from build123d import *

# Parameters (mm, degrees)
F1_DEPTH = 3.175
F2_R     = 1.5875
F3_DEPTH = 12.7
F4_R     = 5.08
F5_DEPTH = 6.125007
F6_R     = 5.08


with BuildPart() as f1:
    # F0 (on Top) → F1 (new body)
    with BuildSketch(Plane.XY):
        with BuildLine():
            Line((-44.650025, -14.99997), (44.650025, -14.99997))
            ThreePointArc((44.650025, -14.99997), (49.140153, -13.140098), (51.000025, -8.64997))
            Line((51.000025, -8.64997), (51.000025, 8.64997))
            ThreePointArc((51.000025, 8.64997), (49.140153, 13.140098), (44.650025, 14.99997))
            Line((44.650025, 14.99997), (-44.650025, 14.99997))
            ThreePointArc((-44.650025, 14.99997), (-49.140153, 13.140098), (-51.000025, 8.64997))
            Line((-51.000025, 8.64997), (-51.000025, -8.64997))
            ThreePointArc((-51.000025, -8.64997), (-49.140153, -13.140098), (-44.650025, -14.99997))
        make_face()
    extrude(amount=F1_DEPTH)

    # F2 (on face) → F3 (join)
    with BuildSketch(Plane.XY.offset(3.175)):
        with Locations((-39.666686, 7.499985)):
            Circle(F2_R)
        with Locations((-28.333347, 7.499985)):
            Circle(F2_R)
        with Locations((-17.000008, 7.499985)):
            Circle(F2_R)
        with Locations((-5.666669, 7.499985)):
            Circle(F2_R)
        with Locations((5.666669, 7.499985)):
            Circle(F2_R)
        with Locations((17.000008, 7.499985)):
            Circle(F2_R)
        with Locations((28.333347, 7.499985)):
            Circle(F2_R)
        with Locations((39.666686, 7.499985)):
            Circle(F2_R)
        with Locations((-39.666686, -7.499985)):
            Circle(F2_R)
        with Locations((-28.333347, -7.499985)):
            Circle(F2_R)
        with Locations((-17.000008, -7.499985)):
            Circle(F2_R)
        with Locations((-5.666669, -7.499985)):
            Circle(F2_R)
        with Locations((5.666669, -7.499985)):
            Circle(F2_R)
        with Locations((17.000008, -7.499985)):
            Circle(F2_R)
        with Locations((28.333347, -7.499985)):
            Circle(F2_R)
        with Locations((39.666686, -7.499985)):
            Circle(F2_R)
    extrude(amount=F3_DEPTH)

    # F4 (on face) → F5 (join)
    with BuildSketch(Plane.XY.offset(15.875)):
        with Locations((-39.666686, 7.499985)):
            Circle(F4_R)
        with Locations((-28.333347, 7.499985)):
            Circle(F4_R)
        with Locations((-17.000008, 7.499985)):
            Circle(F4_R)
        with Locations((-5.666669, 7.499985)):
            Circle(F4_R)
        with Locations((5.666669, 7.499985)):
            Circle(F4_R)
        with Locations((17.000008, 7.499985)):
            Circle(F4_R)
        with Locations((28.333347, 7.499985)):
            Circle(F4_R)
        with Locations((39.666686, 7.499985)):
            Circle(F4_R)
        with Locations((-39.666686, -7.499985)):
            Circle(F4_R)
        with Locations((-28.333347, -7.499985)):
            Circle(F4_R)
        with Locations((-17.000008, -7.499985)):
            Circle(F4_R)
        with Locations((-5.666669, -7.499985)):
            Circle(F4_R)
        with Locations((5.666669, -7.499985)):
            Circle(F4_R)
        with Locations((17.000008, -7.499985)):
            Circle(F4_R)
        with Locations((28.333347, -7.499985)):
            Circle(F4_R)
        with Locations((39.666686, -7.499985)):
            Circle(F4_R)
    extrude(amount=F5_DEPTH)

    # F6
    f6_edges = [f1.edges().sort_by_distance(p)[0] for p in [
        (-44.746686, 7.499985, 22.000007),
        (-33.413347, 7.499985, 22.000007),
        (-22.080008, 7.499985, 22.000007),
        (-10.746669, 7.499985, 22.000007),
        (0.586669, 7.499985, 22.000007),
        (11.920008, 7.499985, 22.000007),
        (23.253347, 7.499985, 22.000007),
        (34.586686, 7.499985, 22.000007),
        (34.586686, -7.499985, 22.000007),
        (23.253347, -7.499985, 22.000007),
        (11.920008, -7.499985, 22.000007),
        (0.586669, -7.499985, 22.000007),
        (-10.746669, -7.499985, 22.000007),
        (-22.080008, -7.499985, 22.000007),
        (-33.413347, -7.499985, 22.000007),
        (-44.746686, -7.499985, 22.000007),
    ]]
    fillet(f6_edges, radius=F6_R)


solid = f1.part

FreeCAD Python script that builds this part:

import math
import FreeCAD as App
import Part
import Sketcher
Q = App.Units.Quantity


def edges_at(feature, points):
    """Names of the edges that pass closest to the given points."""
    edges = feature.Shape.Edges
    near = lambda p: min(range(len(edges)), key=lambda i: edges[i].distToShape(Part.Vertex(*p))[0])
    return sorted({f"Edge{near(p) + 1}" for p in points})

doc = App.newDocument("Part")
body = doc.addObject("PartDesign::Body", "Body")

sketch1 = body.newObject("Sketcher::SketchObject", "Sketch")
sketch1.AttachmentSupport = (doc.getObject("XY_Plane"), [""])
sketch1.MapMode = "FlatFace"
sketch1.addGeometry([
    Part.LineSegment(App.Vector(-45, -15, 0), App.Vector(45, -15, 0)),
    Part.ArcOfCircle(Part.Circle(App.Vector(45, -9, 0), App.Vector(0, 0, 1), 6), math.radians(-90), math.radians(0)),
    Part.LineSegment(App.Vector(51, -9, 0), App.Vector(51, 9, 0)),
    Part.ArcOfCircle(Part.Circle(App.Vector(45, 9, 0), App.Vector(0, 0, 1), 6), math.radians(0), math.radians(90)),
    Part.LineSegment(App.Vector(45, 15, 0), App.Vector(-45, 15, 0)),
    Part.ArcOfCircle(Part.Circle(App.Vector(-45, 9, 0), App.Vector(0, 0, 1), 6), math.radians(90), math.radians(180)),
    Part.LineSegment(App.Vector(-51, 9, 0), App.Vector(-51, -9, 0)),
    Part.ArcOfCircle(Part.Circle(App.Vector(-45, -9, 0), App.Vector(0, 0, 1), 6), math.radians(-180), math.radians(-90)),
], False)
sketch1.addConstraint([
    Sketcher.Constraint("Tangent", 0, 2, 1, 1),
    Sketcher.Constraint("Tangent", 1, 2, 2, 1),
    Sketcher.Constraint("Tangent", 2, 2, 3, 1),
    Sketcher.Constraint("Tangent", 3, 2, 4, 1),
    Sketcher.Constraint("Tangent", 4, 2, 5, 1),
    Sketcher.Constraint("Tangent", 5, 2, 6, 1),
    Sketcher.Constraint("Tangent", 6, 2, 7, 1),
    Sketcher.Constraint("Tangent", 7, 2, 0, 1),
    Sketcher.Constraint("Horizontal", 0),
    Sketcher.Constraint("Vertical", 2),
    Sketcher.Constraint("Horizontal", 4),
    Sketcher.Constraint("Vertical", 6),
    Sketcher.Constraint("Equal", 1, 3),
    Sketcher.Constraint("Equal", 3, 5),
    Sketcher.Constraint("Equal", 5, 7),
    Sketcher.Constraint("Symmetric", 1, 3, 5, 3, -1, 1),
    Sketcher.Constraint("Radius", 1, Q("0.25 in")),
    Sketcher.Constraint("DistanceY", 2, 1, 2, 2, Q("0.6811 in")),
    Sketcher.Constraint("DistanceX", 0, 1, 0, 2, 89.30005),
])
pad1 = body.newObject("PartDesign::Pad", "Pad")
pad1.Profile = sketch1
pad1.Length = Q("0.125 in")

sketch2 = body.newObject("Sketcher::SketchObject", "Sketch001")
sketch2.AttachmentSupport = (doc.getObject("XY_Plane"), [""])
sketch2.MapMode = "FlatFace"
sketch2.AttachmentOffset = App.Placement(App.Vector(0, 0, 0.125 * 25.4), App.Rotation())
sketch2.addGeometry([
    Part.Circle(App.Vector(-39.7, 7.5, 0), App.Vector(0, 0, 1), 1.6),
    Part.Circle(App.Vector(-28.3, 7.5, 0), App.Vector(0, 0, 1), 1.6),
    Part.Circle(App.Vector(-17, 7.5, 0), App.Vector(0, 0, 1), 1.6),
    Part.Circle(App.Vector(-5.7, 7.5, 0), App.Vector(0, 0, 1), 1.6),
    Part.Circle(App.Vector(5.7, 7.5, 0), App.Vector(0, 0, 1), 1.6),
    Part.Circle(App.Vector(17, 7.5, 0), App.Vector(0, 0, 1), 1.6),
    Part.Circle(App.Vector(28.3, 7.5, 0), App.Vector(0, 0, 1), 1.6),
    Part.Circle(App.Vector(39.7, 7.5, 0), App.Vector(0, 0, 1), 1.6),
    Part.Circle(App.Vector(-39.7, -7.5, 0), App.Vector(0, 0, 1), 1.6),
    Part.Circle(App.Vector(-28.3, -7.5, 0), App.Vector(0, 0, 1), 1.6),
    Part.Circle(App.Vector(-17, -7.5, 0), App.Vector(0, 0, 1), 1.6),
    Part.Circle(App.Vector(-5.7, -7.5, 0), App.Vector(0, 0, 1), 1.6),
    Part.Circle(App.Vector(5.7, -7.5, 0), App.Vector(0, 0, 1), 1.6),
    Part.Circle(App.Vector(17, -7.5, 0), App.Vector(0, 0, 1), 1.6),
    Part.Circle(App.Vector(28.3, -7.5, 0), App.Vector(0, 0, 1), 1.6),
    Part.Circle(App.Vector(39.7, -7.5, 0), App.Vector(0, 0, 1), 1.6),
], False)
sketch2.addConstraint([
    Sketcher.Constraint("Equal", 0, 1),
    Sketcher.Constraint("Equal", 1, 2),
    Sketcher.Constraint("Equal", 2, 3),
    Sketcher.Constraint("Equal", 3, 4),
    Sketcher.Constraint("Equal", 4, 5),
    Sketcher.Constraint("Equal", 5, 6),
    Sketcher.Constraint("Equal", 6, 7),
    Sketcher.Constraint("Equal", 7, 8),
    Sketcher.Constraint("Equal", 8, 9),
    Sketcher.Constraint("Equal", 9, 10),
    Sketcher.Constraint("Equal", 10, 11),
    Sketcher.Constraint("Equal", 11, 12),
    Sketcher.Constraint("Equal", 12, 13),
    Sketcher.Constraint("Equal", 13, 14),
    Sketcher.Constraint("Equal", 14, 15),
    Sketcher.Constraint("Symmetric", 7, 3, 8, 3, -1, 1),
    Sketcher.Constraint("Symmetric", 6, 3, 9, 3, -1, 1),
    Sketcher.Constraint("Symmetric", 5, 3, 10, 3, -1, 1),
    Sketcher.Constraint("Symmetric", 4, 3, 11, 3, -1, 1),
    Sketcher.Constraint("Symmetric", 3, 3, 12, 3, -1, 1),
    Sketcher.Constraint("Symmetric", 2, 3, 13, 3, -1, 1),
    Sketcher.Constraint("Symmetric", 1, 3, 14, 3, -1, 1),
    Sketcher.Constraint("Symmetric", 0, 3, 15, 3, -1, 1),
    Sketcher.Constraint("Symmetric", 3, 3, 4, 3, -2),
    Sketcher.Constraint("Symmetric", 2, 3, 5, 3, -2),
    Sketcher.Constraint("Symmetric", 1, 3, 6, 3, -2),
    Sketcher.Constraint("Symmetric", 0, 3, 7, 3, -2),
    Sketcher.Constraint("Horizontal", 0, 3, 1, 3),
    Sketcher.Constraint("Horizontal", 1, 3, 2, 3),
    Sketcher.Constraint("Horizontal", 2, 3, 3, 3),
    Sketcher.Constraint("Diameter", 0, Q("0.125 in")),
    Sketcher.Constraint("DistanceX", 2, 3, -1, 1, 17.000008),
    Sketcher.Constraint("DistanceX", 3, 3, -1, 1, 5.666669),
    Sketcher.Constraint("DistanceX", 0, 3, 1, 3, 11.333339),
    Sketcher.Constraint("DistanceX", 1, 3, 2, 3, 11.333339),
    Sketcher.Constraint("DistanceY", 8, 3, 0, 3, 14.99997),
])
pad2 = body.newObject("PartDesign::Pad", "Pad001")
pad2.Profile = sketch2
pad2.Length = Q("0.5 in")

sketch3 = body.newObject("Sketcher::SketchObject", "Sketch002")
sketch3.AttachmentSupport = (doc.getObject("XY_Plane"), [""])
sketch3.MapMode = "FlatFace"
sketch3.AttachmentOffset = App.Placement(App.Vector(0, 0, 0.625 * 25.4), App.Rotation())
sketch3.addGeometry([
    Part.Circle(App.Vector(-40, 7, 0), App.Vector(0, 0, 1), 5),
    Part.Circle(App.Vector(-28, 7, 0), App.Vector(0, 0, 1), 5),
    Part.Circle(App.Vector(-17, 7, 0), App.Vector(0, 0, 1), 5),
    Part.Circle(App.Vector(-6, 7, 0), App.Vector(0, 0, 1), 5),
    Part.Circle(App.Vector(6, 7, 0), App.Vector(0, 0, 1), 5),
    Part.Circle(App.Vector(17, 7, 0), App.Vector(0, 0, 1), 5),
    Part.Circle(App.Vector(28, 7, 0), App.Vector(0, 0, 1), 5),
    Part.Circle(App.Vector(40, 7, 0), App.Vector(0, 0, 1), 5),
    Part.Circle(App.Vector(-40, -7, 0), App.Vector(0, 0, 1), 5),
    Part.Circle(App.Vector(-28, -7, 0), App.Vector(0, 0, 1), 5),
    Part.Circle(App.Vector(-17, -7, 0), App.Vector(0, 0, 1), 5),
    Part.Circle(App.Vector(-6, -7, 0), App.Vector(0, 0, 1), 5),
    Part.Circle(App.Vector(6, -7, 0), App.Vector(0, 0, 1), 5),
    Part.Circle(App.Vector(17, -7, 0), App.Vector(0, 0, 1), 5),
    Part.Circle(App.Vector(28, -7, 0), App.Vector(0, 0, 1), 5),
    Part.Circle(App.Vector(40, -7, 0), App.Vector(0, 0, 1), 5),
], False)
sketch3.addConstraint([
    Sketcher.Constraint("Equal", 0, 1),
    Sketcher.Constraint("Equal", 1, 2),
    Sketcher.Constraint("Equal", 2, 3),
    Sketcher.Constraint("Equal", 3, 4),
    Sketcher.Constraint("Equal", 4, 5),
    Sketcher.Constraint("Equal", 5, 6),
    Sketcher.Constraint("Equal", 6, 7),
    Sketcher.Constraint("Equal", 7, 8),
    Sketcher.Constraint("Equal", 8, 9),
    Sketcher.Constraint("Equal", 9, 10),
    Sketcher.Constraint("Equal", 10, 11),
    Sketcher.Constraint("Equal", 11, 12),
    Sketcher.Constraint("Equal", 12, 13),
    Sketcher.Constraint("Equal", 13, 14),
    Sketcher.Constraint("Equal", 14, 15),
    Sketcher.Constraint("Symmetric", 7, 3, 8, 3, -1, 1),
    Sketcher.Constraint("Symmetric", 6, 3, 9, 3, -1, 1),
    Sketcher.Constraint("Symmetric", 5, 3, 10, 3, -1, 1),
    Sketcher.Constraint("Symmetric", 4, 3, 11, 3, -1, 1),
    Sketcher.Constraint("Symmetric", 3, 3, 12, 3, -1, 1),
    Sketcher.Constraint("Symmetric", 2, 3, 13, 3, -1, 1),
    Sketcher.Constraint("Symmetric", 1, 3, 14, 3, -1, 1),
    Sketcher.Constraint("Symmetric", 0, 3, 15, 3, -1, 1),
    Sketcher.Constraint("Symmetric", 3, 3, 4, 3, -2),
    Sketcher.Constraint("Symmetric", 2, 3, 5, 3, -2),
    Sketcher.Constraint("Symmetric", 1, 3, 6, 3, -2),
    Sketcher.Constraint("Symmetric", 0, 3, 7, 3, -2),
    Sketcher.Constraint("Horizontal", 0, 3, 1, 3),
    Sketcher.Constraint("Horizontal", 1, 3, 2, 3),
    Sketcher.Constraint("Horizontal", 2, 3, 3, 3),
    Sketcher.Constraint("Diameter", 0, Q("0.4 in")),
    Sketcher.Constraint("DistanceX", 2, 3, -1, 1, 17.000008),
    Sketcher.Constraint("DistanceX", 3, 3, -1, 1, 5.666669),
    Sketcher.Constraint("DistanceX", 0, 3, 1, 3, 11.333339),
    Sketcher.Constraint("DistanceX", 1, 3, 2, 3, 11.333339),
    Sketcher.Constraint("DistanceY", 8, 3, 0, 3, 14.99997),
])
pad3 = body.newObject("PartDesign::Pad", "Pad002")
pad3.Profile = sketch3
pad3.Length = 6.125007
doc.recompute()

fillet = body.newObject("PartDesign::Fillet", "Fillet")
fillet.Base = (pad3, edges_at(pad3, [
    (-44.747, 7.5, 22),
    (-33.413, 7.5, 22),
    (-22.08, 7.5, 22),
    (-10.747, 7.5, 22),
    (0.587, 7.5, 22),
    (11.92, 7.5, 22),
    (23.253, 7.5, 22),
    (34.587, 7.5, 22),
    (34.587, -7.5, 22),
    (23.253, -7.5, 22),
    (11.92, -7.5, 22),
    (0.587, -7.5, 22),
    (-10.747, -7.5, 22),
    (-22.08, -7.5, 22),
    (-33.413, -7.5, 22),
    (-44.747, -7.5, 22),
]))
fillet.Radius = Q("0.2 in")

doc.recompute()
